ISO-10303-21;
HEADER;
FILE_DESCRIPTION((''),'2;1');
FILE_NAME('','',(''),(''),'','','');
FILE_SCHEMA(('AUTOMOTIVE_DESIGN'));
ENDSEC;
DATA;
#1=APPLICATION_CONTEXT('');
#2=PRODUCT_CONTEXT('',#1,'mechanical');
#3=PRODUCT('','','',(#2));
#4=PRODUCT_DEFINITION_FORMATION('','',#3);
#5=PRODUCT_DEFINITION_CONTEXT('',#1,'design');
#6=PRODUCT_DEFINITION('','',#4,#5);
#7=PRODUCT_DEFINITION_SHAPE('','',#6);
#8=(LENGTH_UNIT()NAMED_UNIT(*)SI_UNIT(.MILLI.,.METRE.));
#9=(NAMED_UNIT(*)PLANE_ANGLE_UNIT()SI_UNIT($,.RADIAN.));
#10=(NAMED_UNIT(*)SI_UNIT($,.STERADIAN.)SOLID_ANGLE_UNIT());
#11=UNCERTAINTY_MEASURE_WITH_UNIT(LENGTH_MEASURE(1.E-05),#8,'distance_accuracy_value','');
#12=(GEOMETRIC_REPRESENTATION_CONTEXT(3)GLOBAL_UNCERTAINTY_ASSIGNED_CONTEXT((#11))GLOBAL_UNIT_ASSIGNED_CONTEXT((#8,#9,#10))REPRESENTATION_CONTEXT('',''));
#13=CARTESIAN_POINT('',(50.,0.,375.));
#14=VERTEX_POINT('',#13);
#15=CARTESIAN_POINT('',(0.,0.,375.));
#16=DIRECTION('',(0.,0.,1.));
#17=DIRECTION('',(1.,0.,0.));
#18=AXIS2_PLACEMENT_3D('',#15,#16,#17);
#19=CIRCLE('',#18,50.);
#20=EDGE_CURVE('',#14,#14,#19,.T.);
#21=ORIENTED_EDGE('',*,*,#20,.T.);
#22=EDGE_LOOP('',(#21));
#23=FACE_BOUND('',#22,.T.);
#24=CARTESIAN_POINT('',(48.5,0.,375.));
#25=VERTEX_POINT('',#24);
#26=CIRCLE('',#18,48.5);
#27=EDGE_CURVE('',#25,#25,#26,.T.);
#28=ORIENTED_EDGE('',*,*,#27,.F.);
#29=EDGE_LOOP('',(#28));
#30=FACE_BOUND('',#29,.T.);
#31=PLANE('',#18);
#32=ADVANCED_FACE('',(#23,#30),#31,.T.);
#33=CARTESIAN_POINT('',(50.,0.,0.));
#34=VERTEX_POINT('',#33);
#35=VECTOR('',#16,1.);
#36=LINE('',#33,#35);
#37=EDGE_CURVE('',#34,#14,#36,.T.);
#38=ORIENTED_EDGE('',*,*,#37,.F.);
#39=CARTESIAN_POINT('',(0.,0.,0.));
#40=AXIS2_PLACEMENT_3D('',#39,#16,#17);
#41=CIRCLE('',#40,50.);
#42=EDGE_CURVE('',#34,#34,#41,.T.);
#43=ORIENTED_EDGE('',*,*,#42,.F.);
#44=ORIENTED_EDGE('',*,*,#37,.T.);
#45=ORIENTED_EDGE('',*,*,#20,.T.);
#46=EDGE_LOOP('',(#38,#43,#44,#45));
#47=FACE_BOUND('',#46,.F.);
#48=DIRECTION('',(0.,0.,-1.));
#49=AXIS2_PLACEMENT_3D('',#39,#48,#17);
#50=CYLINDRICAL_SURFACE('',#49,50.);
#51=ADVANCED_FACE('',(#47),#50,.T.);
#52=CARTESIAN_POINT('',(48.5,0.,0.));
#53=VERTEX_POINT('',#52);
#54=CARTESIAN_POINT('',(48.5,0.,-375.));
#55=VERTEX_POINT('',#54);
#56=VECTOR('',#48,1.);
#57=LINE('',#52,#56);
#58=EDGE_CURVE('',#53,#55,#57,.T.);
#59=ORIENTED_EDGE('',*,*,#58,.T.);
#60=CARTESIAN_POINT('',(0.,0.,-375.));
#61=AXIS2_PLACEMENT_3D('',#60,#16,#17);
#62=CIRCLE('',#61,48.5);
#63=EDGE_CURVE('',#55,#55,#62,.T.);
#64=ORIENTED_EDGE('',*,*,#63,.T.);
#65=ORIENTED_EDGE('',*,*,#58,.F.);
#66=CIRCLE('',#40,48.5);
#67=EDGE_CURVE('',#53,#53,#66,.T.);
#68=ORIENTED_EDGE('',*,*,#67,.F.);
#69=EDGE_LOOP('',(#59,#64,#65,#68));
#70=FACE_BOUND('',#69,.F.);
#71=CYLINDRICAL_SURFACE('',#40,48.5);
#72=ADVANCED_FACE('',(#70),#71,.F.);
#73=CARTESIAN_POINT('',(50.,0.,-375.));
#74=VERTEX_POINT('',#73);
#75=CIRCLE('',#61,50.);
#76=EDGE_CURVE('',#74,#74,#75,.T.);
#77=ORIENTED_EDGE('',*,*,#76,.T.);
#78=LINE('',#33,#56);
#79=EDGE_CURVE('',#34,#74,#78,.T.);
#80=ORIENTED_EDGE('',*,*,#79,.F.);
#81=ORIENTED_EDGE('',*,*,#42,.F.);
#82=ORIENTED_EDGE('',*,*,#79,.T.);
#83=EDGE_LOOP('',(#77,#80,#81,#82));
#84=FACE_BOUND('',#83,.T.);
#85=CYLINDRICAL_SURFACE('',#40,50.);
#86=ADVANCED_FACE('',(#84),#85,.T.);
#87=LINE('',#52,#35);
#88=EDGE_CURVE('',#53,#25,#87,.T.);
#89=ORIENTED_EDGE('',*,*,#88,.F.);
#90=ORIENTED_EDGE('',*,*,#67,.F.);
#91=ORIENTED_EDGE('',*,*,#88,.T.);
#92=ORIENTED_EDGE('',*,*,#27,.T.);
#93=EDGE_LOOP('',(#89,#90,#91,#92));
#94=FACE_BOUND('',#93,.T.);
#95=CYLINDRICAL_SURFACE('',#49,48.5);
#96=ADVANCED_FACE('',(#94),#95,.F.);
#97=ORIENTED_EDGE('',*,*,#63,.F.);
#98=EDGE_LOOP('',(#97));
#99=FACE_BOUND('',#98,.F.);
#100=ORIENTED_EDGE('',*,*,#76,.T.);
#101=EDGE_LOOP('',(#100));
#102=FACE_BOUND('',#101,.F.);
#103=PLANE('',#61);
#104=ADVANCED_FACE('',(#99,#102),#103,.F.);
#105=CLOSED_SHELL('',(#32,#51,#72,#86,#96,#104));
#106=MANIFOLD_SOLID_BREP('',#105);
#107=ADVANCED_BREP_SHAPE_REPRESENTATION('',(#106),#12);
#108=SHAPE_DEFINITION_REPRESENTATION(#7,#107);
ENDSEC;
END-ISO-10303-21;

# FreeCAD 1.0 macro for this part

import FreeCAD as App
import Part
import Sketcher
from FreeCAD import Vector
Q = App.Units.Quantity

doc = App.newDocument("Part")
body = doc.addObject("PartDesign::Body", "Body")

# Sketch on XY plane
sketch1 = body.newObject("Sketcher::SketchObject", "Sketch")
sketch1.AttachmentSupport = (doc.getObject("XY_Plane"), [""])
sketch1.MapMode = "FlatFace"
sketch1.addGeometry([
    Part.Circle(Vector(0, 0, 0), Vector(0, 0, 1), 50),
    Part.Circle(Vector(0, 0, 0), Vector(0, 0, 1), 48),
], False)
sketch1.addConstraint([
    Sketcher.Constraint("Coincident", 0, 3, -1, 1),
    Sketcher.Constraint("Coincident", 1, 3, -1, 1),
    Sketcher.Constraint("Diameter", 0, Q("100 mm")),
    Sketcher.Constraint("Diameter", 1, Q("97 mm")),
])
pad1 = body.newObject("PartDesign::Pad", "Pad")
pad1.Profile = sketch1
pad1.Length = 750
pad1.Midplane = True

doc.recompute()
